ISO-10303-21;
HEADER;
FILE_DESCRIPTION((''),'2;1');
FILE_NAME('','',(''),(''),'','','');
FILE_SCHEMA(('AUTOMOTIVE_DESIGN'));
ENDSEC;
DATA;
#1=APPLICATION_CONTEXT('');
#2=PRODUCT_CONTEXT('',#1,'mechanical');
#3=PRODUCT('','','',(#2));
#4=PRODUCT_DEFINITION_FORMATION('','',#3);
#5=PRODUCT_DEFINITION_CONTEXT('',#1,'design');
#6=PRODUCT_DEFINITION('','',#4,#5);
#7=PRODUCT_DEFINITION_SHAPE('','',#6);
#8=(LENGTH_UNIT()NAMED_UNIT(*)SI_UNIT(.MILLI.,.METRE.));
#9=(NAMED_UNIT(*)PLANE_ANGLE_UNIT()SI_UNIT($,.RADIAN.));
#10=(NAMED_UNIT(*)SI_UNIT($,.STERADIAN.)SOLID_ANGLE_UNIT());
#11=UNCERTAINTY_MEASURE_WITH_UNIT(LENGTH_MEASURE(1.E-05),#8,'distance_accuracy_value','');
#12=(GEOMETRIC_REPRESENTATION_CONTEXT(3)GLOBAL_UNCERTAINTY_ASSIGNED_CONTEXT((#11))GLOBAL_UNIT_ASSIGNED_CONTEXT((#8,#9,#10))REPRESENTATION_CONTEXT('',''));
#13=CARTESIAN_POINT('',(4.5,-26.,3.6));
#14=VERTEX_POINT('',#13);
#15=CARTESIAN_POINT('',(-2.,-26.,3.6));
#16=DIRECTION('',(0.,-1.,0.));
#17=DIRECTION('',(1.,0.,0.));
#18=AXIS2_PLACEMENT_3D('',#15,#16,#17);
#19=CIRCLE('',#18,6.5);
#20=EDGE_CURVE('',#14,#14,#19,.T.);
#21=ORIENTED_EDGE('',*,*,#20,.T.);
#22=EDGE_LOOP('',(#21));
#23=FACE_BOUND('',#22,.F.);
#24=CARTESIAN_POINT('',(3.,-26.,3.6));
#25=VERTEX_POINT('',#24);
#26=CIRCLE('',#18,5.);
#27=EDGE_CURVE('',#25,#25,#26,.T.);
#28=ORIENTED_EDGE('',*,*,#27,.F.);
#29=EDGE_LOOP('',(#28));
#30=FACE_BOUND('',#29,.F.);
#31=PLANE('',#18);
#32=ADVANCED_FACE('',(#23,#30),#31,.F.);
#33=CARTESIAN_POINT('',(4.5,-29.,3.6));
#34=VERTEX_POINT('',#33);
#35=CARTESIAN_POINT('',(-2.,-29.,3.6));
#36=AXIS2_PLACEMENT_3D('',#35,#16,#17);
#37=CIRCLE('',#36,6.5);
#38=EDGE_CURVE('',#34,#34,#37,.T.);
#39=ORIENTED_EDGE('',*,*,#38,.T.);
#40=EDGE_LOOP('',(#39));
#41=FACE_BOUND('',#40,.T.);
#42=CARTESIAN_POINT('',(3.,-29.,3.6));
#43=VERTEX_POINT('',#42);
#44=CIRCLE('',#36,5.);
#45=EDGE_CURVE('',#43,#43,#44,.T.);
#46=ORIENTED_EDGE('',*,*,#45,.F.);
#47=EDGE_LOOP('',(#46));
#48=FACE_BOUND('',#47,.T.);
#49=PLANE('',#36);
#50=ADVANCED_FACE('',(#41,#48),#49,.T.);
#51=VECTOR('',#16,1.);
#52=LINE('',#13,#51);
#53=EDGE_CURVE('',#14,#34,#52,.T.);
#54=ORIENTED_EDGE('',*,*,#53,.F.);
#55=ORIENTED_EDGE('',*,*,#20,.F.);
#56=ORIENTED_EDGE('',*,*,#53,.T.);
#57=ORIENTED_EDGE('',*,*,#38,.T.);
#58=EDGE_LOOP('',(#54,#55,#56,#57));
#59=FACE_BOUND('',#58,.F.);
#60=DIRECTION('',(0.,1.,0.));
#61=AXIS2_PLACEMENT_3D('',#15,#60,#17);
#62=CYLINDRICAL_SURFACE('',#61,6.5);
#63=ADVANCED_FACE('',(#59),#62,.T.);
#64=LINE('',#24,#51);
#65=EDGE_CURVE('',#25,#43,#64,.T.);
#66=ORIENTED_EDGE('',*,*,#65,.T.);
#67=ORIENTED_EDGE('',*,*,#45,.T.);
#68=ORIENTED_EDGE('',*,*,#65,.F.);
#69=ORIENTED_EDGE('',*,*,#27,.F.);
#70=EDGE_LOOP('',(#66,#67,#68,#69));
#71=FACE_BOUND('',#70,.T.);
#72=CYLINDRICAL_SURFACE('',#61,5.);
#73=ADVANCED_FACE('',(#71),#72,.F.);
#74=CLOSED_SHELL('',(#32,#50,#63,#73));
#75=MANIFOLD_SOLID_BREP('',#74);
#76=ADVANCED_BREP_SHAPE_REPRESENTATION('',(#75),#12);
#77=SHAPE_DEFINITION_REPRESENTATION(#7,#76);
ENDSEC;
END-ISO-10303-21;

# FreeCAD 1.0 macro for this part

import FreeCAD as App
import Part
import Sketcher
Q = App.Units.Quantity

doc = App.newDocument("Part")
body = doc.addObject("PartDesign::Body", "Body")

# Sketch on XY plane
sketch1 = doc.addObject("Sketcher::SketchObject", "Sketch")
body.addObject(sketch1)
sketch1.AttachmentSupport = (doc.XY_Plane, [""])
sketch1.MapMode = "FlatFace"
sketch1.addGeometry(Part.Circle(App.Vector(0, 0, 0), App.Vector(0, 0, 1), 5), False)
sketch1.addConstraint([
    Sketcher.Constraint("Coincident", 0, 3, -1, 1),
    Sketcher.Constraint("Diameter", 0, Q("10 mm")),
])
pad1 = doc.addObject("PartDesign::Pad", "Pad")
body.addObject(pad1)
pad1.Profile = sketch1
pad1.Length = 3
body2 = doc.addObject("PartDesign::Body", "Body001")
doc.recompute()

body.Placement = App.Placement(App.Vector(0, 0, 0), App.Rotation(App.Vector(1, 0, 0), 90))
boolean = doc.addObject("PartDesign::Boolean", "Boolean")
body2.addObject(boolean)
boolean.Type = "Fuse"
boolean.addObjects([body])
body3 = doc.addObject("PartDesign::Body", "Body002")
doc.recompute()

body2.Placement = App.Placement(App.Vector(-5.4, 46, 0), App.Rotation(App.Vector(0, 0, 1), 0))
boolean2 = doc.addObject("PartDesign::Boolean", "Boolean001")
body3.addObject(boolean2)
boolean2.Type = "Fuse"
boolean2.addObjects([body2])
body4 = doc.addObject("PartDesign::Body", "Body003")

# Sketch on XY plane
sketch2 = doc.addObject("Sketcher::SketchObject", "Sketch001")
body4.addObject(sketch2)
sketch2.AttachmentSupport = (doc.getObject("XY_Plane003"), [""])
sketch2.MapMode = "FlatFace"
sketch2.addGeometry(Part.Circle(App.Vector(0, 0, 0), App.Vector(0, 0, 1), 6), False)
sketch2.addConstraint([
    Sketcher.Constraint("Coincident", 0, 3, -1, 1),
    Sketcher.Constraint("Diameter", 0, Q("13 mm")),
])
pad2 = doc.addObject("PartDesign::Pad", "Pad001")
body4.addObject(pad2)
pad2.Profile = sketch2
pad2.Length = 3
body5 = doc.addObject("PartDesign::Body", "Body004")
doc.recompute()

body4.Placement = App.Placement(App.Vector(0, 0, 0), App.Rotation(App.Vector(1, 0, 0), 90))
boolean3 = doc.addObject("PartDesign::Boolean", "Boolean002")
body5.addObject(boolean3)
boolean3.Type = "Fuse"
boolean3.addObjects([body4])
body6 = doc.addObject("PartDesign::Body", "Body005")
doc.recompute()

body5.Placement = App.Placement(App.Vector(-5.4, 46, 0), App.Rotation(App.Vector(0, 0, 1), 0))
boolean4 = doc.addObject("PartDesign::Boolean", "Boolean003")
body6.addObject(boolean4)
boolean4.Type = "Fuse"
boolean4.addObjects([body5])
doc.recompute()

boolean5 = doc.addObject("PartDesign::Boolean", "Boolean004")
body6.addObject(boolean5)
boolean5.Type = "Cut"
boolean5.addObjects([body3])
body7 = doc.addObject("PartDesign::Body", "Body006")
doc.recompute()

body6.Placement = App.Placement(App.Vector(3.4, -72, 3.6), App.Rotation(App.Vector(0, 0, 1), 0))
boolean6 = doc.addObject("PartDesign::Boolean", "Boolean005")
body7.addObject(boolean6)
boolean6.Type = "Fuse"
boolean6.addObjects([body6])

doc.recompute()
